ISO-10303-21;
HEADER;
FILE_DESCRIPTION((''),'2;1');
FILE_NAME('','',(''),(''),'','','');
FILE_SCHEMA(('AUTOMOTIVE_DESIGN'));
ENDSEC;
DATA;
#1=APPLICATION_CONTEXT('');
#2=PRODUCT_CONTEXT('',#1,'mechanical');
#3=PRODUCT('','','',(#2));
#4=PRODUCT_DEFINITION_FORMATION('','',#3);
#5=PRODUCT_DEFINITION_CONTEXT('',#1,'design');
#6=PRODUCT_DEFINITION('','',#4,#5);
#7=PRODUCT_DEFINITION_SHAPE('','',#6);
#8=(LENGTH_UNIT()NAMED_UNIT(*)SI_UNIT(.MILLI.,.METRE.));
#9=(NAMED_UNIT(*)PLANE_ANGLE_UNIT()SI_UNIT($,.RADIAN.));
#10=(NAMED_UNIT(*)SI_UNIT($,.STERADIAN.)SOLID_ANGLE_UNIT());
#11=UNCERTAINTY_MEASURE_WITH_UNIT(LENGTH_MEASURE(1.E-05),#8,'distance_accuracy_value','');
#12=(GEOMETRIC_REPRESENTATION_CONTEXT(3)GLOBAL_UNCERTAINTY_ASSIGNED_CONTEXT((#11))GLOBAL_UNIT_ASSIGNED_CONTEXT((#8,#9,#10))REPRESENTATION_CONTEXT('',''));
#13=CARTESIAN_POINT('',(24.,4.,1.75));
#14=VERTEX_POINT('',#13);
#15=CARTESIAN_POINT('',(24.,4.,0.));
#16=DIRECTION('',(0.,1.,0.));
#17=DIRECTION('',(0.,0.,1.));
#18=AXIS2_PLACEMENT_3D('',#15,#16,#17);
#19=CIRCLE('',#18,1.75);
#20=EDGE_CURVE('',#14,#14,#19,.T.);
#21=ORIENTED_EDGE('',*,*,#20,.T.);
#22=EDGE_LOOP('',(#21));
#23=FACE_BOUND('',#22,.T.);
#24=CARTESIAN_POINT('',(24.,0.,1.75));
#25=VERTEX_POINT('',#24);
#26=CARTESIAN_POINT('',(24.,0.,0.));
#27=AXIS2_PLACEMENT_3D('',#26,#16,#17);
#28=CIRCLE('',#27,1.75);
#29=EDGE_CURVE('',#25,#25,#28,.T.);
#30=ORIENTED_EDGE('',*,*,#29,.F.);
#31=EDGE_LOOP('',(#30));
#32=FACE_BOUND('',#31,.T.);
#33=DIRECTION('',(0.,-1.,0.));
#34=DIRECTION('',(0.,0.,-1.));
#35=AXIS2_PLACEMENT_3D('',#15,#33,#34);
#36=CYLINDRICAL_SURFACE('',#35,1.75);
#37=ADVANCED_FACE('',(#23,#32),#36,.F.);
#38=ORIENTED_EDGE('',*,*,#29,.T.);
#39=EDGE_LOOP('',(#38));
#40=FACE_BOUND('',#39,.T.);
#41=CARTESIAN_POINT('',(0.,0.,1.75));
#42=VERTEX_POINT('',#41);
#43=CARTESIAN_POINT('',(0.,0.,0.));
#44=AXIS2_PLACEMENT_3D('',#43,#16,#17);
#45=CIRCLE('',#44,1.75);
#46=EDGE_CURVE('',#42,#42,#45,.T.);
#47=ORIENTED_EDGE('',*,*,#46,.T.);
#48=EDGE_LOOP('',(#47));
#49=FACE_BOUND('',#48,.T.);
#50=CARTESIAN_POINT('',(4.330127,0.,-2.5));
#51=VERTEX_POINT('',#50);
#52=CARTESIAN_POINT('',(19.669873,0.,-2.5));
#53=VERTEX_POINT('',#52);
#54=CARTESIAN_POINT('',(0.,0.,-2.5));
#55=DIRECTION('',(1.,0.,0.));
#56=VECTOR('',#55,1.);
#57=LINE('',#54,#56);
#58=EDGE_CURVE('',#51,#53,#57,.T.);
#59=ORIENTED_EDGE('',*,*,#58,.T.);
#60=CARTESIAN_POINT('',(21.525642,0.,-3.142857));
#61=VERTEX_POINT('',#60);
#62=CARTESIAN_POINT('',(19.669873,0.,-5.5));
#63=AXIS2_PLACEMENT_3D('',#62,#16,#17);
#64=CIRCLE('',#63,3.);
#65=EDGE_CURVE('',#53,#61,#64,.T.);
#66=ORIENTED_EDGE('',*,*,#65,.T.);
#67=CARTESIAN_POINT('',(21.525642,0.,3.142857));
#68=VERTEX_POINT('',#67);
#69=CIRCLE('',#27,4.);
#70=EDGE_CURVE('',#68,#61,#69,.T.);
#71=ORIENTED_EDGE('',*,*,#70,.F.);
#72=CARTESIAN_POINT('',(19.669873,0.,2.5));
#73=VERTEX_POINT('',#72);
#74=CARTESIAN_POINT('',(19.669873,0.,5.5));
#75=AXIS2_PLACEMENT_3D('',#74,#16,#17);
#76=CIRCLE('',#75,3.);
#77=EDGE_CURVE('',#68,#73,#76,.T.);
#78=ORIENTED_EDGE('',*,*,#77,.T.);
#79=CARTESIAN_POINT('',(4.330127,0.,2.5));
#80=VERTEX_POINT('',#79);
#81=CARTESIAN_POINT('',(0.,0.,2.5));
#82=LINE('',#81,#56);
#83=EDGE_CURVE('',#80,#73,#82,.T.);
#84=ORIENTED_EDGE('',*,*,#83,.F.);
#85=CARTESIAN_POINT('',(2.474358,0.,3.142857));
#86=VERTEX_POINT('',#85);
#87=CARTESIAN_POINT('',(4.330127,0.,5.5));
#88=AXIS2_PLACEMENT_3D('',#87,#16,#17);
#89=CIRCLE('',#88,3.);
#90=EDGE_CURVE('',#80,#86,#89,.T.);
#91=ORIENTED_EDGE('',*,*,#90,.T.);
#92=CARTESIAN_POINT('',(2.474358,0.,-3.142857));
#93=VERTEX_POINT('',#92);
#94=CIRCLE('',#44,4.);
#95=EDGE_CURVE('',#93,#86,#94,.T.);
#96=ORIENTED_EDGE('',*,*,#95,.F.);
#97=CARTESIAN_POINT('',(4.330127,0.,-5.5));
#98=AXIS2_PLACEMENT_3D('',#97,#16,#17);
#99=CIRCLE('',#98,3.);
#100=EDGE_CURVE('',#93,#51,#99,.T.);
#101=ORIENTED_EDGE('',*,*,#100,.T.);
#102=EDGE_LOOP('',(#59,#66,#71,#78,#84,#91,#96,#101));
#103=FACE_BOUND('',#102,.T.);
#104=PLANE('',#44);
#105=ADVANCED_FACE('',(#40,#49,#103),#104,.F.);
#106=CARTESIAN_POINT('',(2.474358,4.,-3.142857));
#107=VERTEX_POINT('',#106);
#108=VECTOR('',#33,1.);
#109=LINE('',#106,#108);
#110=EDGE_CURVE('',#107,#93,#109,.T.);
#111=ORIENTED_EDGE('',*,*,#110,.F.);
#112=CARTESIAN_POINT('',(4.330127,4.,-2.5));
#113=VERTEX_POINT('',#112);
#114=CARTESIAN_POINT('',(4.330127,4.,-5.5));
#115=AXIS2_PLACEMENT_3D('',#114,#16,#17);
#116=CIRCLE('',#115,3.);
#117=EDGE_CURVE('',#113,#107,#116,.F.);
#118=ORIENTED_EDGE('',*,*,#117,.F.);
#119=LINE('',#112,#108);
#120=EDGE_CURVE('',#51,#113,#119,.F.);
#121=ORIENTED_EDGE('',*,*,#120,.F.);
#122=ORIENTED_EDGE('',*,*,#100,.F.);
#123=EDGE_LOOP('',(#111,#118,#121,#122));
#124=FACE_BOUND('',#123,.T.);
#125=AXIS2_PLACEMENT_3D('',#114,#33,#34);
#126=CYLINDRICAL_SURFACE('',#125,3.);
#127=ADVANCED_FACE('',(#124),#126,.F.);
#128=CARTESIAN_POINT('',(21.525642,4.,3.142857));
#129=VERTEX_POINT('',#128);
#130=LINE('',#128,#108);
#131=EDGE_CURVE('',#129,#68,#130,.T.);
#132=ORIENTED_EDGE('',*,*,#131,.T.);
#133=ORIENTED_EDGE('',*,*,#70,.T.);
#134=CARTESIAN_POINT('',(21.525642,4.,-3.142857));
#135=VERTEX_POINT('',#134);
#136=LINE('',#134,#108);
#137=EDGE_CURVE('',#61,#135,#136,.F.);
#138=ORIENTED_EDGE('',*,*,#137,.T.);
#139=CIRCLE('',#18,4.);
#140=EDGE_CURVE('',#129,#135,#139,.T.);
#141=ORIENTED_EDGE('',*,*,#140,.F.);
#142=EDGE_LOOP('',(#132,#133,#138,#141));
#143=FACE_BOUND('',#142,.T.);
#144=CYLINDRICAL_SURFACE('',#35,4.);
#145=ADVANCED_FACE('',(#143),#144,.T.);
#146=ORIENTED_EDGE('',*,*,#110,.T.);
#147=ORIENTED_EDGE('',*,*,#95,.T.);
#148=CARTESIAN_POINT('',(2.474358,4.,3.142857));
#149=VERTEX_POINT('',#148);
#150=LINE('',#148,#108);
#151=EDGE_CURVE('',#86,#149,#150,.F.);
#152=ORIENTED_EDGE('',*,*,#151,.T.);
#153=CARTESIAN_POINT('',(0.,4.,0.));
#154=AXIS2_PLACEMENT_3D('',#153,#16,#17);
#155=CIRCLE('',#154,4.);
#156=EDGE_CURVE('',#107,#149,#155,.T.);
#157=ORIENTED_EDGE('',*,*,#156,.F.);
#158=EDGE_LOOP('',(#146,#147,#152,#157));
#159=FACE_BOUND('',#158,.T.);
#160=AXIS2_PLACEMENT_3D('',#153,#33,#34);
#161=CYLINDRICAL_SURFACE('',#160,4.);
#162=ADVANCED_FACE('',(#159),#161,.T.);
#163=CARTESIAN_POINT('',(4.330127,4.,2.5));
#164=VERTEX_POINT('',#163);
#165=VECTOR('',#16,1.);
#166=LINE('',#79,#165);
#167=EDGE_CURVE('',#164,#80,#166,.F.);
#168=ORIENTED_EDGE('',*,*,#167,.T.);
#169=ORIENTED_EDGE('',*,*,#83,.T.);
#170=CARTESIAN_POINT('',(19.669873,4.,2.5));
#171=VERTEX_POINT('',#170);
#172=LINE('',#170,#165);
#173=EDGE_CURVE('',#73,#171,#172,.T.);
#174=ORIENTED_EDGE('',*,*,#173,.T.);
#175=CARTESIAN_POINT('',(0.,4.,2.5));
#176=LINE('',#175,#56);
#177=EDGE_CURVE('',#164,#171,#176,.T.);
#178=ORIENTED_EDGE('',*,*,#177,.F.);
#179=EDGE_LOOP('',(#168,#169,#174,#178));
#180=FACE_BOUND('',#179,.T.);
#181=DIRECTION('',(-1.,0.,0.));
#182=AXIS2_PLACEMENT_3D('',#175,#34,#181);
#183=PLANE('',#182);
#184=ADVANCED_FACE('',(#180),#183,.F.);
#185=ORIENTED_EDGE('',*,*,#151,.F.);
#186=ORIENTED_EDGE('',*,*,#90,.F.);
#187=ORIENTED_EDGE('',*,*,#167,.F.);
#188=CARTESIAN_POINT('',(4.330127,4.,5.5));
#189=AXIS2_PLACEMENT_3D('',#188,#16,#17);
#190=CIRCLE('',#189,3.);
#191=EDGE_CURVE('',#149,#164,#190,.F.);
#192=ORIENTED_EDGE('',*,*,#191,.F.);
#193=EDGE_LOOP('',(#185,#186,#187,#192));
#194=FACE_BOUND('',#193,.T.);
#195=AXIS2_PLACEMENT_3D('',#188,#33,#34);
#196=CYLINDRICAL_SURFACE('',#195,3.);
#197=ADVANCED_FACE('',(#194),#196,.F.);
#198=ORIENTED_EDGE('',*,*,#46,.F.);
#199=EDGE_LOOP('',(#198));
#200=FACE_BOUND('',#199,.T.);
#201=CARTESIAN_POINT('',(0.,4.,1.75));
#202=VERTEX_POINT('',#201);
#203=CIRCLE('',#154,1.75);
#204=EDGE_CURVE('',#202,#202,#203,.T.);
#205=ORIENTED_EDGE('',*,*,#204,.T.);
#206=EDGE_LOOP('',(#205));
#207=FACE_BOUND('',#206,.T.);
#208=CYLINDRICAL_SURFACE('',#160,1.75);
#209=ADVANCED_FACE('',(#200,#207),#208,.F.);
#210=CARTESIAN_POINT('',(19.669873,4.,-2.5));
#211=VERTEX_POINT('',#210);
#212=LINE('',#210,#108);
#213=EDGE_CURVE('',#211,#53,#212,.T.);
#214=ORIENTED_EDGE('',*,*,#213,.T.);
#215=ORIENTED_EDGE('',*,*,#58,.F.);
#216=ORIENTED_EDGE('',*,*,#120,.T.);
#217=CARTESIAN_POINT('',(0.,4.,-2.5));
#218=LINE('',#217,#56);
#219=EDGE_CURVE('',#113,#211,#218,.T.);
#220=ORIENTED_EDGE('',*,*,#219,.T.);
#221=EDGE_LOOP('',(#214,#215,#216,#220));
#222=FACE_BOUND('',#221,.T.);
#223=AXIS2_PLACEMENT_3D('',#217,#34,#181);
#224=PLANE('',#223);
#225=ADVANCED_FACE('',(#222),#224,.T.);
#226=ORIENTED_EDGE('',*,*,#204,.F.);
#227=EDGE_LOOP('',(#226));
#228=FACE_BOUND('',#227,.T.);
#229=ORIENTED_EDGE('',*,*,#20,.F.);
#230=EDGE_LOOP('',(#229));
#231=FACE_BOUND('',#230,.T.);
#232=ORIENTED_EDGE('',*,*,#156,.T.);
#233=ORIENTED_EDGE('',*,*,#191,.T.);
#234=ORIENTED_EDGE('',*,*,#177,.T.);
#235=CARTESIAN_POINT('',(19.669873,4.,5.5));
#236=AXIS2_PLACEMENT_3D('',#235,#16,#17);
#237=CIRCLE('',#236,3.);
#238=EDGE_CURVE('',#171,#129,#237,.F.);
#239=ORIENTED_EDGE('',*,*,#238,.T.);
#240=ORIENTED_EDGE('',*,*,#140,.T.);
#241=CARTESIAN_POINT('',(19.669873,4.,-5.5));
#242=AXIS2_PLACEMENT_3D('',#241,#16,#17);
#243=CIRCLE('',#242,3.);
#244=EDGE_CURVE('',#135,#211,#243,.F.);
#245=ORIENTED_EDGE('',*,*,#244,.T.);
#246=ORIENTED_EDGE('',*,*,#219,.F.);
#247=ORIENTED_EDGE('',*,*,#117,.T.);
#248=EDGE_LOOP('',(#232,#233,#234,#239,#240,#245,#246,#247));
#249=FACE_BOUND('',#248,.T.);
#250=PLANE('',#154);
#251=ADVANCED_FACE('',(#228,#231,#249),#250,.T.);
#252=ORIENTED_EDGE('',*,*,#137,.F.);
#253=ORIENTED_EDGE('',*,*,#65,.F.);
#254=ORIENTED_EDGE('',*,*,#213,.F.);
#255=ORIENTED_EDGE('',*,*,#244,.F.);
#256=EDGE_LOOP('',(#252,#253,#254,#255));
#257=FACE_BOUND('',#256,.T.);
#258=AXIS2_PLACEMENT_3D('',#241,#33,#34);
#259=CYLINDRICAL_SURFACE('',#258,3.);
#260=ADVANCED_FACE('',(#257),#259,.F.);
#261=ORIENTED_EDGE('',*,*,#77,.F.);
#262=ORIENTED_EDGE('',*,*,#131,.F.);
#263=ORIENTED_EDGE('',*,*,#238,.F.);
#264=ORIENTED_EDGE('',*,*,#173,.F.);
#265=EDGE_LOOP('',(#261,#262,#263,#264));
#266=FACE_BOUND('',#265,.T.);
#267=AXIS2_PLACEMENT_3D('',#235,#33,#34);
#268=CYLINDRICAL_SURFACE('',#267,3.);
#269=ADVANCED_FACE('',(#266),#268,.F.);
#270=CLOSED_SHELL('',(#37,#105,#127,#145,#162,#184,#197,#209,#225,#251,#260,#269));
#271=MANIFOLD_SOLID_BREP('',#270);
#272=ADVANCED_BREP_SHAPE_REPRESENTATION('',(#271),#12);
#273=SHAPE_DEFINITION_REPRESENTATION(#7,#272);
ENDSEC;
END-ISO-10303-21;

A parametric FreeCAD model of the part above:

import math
import FreeCAD as App
import Part
import Sketcher

V = App.Vector
Q = App.Units.Quantity


def edges_at(feature, points):
    """Names of the edges that pass closest to the given points."""
    edges = feature.Shape.Edges
    near = lambda p: min(range(len(edges)), key=lambda i: edges[i].distToShape(Part.Vertex(*p))[0])
    return sorted({f"Edge{near(p) + 1}" for p in points})

doc = App.newDocument("Part")
params = doc.addObject("Spreadsheet::Sheet", "Params")
for row, (alias, value) in enumerate([
    ("sketch1_radius", "4 mm"),
    ("sketch1_diameter", "3.5 mm"),
    ("pad1_length", "4 mm"),
    ("fillet_radius", "3 mm"),
], start=1):
    params.set(f"A{row}", alias)
    params.set(f"B{row}", "=" + value)
    params.setAlias(f"B{row}", alias)

body = doc.addObject("PartDesign::Body", "Body")

# Sketch on XZ plane
sketch1 = doc.addObject("Sketcher::SketchObject", "Sketch")
body.addObject(sketch1)
sketch1.AttachmentSupport = (doc.XZ_Plane, [""])
sketch1.MapMode = "FlatFace"
sketch1.addGeometry([
    Part.LineSegment(V(20.9, -2.5, 0), V(3.1, -2.5, 0)),  # 0
    Part.ArcOfCircle(Part.Circle(V(0, 0, 0), V(0, 0, 1), 4), math.radians(39), math.radians(321)),  # 1
    Part.LineSegment(V(3.1, 2.5, 0), V(20.9, 2.5, 0)),  # 2
    Part.ArcOfCircle(Part.Circle(V(24, 0, 0), V(0, 0, 1), 4), math.radians(-141), math.radians(141)),  # 3
    Part.Circle(V(0, 0, 0), V(0, 0, 1), 1.8),  # 4
    Part.Circle(V(24, 0, 0), V(0, 0, 1), 1.8),  # 5
], False)
sketch1.addConstraint([
    Sketcher.Constraint("Coincident", 0, 2, 1, 2),
    Sketcher.Constraint("Coincident", 1, 1, 2, 1),
    Sketcher.Constraint("Coincident", 2, 2, 3, 2),
    Sketcher.Constraint("Coincident", 3, 1, 0, 1),
    Sketcher.Constraint("Horizontal", 0),
    Sketcher.Constraint("Horizontal", 2),
    Sketcher.Constraint("Coincident", 1, 3, -1, 1),
    Sketcher.Constraint("Coincident", 4, 3, -1, 1),
    Sketcher.Constraint("Coincident", 5, 3, 3, 3),
    Sketcher.Constraint("Equal", 1, 3),
    Sketcher.Constraint("Equal", 4, 5),
    Sketcher.Constraint("Symmetric", 2, 2, 3, 1, -1),
    Sketcher.Constraint("Radius", 1, Q("4 mm")),
    Sketcher.Constraint("Diameter", 4, Q("3.5 mm")),
    Sketcher.Constraint("DistanceX", -1, 1, 3, 3, Q("24 mm")),
    Sketcher.Constraint("DistanceY", 0, 2, 1, 1, Q("5 mm")),
])
sketch1.setExpression("Constraints[12]", "Params.sketch1_radius")
sketch1.setExpression("Constraints[13]", "Params.sketch1_diameter")
pad1 = doc.addObject("PartDesign::Pad", "Pad")
body.addObject(pad1)
pad1.Profile = sketch1
pad1.setExpression("Length", "Params.pad1_length")
pad1.Reversed = True
doc.recompute()

fillet = doc.addObject("PartDesign::Fillet", "Fillet")
body.addObject(fillet)
fillet.Base = (pad1, edges_at(pad1, [
    (20.878, 2, 2.5),
    (3.122, 2, 2.5),
    (3.122, 2, -2.5),
    (20.878, 2, -2.5),
]))
fillet.setExpression("Radius", "Params.fillet_radius")

doc.recompute()
